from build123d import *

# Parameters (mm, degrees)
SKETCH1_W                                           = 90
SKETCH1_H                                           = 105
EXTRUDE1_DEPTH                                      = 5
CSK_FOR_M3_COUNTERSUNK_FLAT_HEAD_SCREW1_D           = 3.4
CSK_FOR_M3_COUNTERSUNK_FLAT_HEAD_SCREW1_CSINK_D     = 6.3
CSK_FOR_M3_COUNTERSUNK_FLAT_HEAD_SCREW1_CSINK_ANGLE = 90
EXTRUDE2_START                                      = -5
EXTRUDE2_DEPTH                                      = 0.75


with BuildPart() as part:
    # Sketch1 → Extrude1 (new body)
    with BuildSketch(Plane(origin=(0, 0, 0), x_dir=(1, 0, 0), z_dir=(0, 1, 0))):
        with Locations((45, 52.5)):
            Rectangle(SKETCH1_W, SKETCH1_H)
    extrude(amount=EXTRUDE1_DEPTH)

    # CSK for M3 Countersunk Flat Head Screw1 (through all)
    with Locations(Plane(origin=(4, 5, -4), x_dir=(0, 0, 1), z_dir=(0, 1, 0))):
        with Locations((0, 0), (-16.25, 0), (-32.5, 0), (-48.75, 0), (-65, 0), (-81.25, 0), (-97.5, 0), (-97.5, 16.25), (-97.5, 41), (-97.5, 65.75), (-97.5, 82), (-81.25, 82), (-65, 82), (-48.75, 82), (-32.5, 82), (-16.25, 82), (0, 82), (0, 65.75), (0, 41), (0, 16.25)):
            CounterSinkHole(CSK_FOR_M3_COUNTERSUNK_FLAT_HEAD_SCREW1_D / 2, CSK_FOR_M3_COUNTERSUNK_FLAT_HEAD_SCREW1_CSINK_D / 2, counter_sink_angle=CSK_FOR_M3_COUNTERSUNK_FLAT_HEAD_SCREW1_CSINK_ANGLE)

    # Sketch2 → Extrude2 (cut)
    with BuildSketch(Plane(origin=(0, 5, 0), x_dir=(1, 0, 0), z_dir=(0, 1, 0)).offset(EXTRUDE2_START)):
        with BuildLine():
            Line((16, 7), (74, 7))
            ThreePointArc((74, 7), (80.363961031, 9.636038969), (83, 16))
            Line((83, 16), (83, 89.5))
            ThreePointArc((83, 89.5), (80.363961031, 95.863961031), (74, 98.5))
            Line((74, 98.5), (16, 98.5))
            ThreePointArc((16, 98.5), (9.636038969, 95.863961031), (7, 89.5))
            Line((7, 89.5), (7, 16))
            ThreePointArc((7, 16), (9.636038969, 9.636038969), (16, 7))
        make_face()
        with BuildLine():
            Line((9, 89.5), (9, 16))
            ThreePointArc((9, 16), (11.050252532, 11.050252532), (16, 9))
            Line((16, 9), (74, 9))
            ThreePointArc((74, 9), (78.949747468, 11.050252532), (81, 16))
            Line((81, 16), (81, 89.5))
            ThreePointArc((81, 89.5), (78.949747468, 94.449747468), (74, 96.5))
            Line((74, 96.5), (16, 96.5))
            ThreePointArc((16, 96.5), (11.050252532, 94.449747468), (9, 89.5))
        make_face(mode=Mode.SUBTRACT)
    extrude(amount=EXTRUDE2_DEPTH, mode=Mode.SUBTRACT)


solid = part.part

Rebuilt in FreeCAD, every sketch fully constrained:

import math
import FreeCAD as App
import Part
import Sketcher
from FreeCAD import Vector

doc = App.newDocument("Part")
body = doc.addObject("PartDesign::Body", "Body")

sketch1 = body.newObject("Sketcher::SketchObject", "Sketch")
sketch1.AttachmentSupport = (doc.getObject("XZ_Plane"), [""])
sketch1.MapMode = "FlatFace"
sketch1.addGeometry(Part.LineSegment(Vector(0, -105, 0), Vector(0, 0, 0)), False)
sketch1.addGeometry(Part.LineSegment(Vector(0, 0, 0), Vector(90, 0, 0)), False)
sketch1.addGeometry(Part.LineSegment(Vector(90, 0, 0), Vector(90, -105, 0)), False)
sketch1.addGeometry(Part.LineSegment(Vector(90, -105, 0), Vector(0, -105, 0)), False)
sketch1.addConstraint(Sketcher.Constraint("Coincident", 0, 2, 1, 1))
sketch1.addConstraint(Sketcher.Constraint("Coincident", 1, 2, 2, 1))
sketch1.addConstraint(Sketcher.Constraint("Coincident", 2, 2, 3, 1))
sketch1.addConstraint(Sketcher.Constraint("Coincident", 3, 2, 0, 1))
sketch1.addConstraint(Sketcher.Constraint("Vertical", 0))
sketch1.addConstraint(Sketcher.Constraint("Horizontal", 1))
sketch1.addConstraint(Sketcher.Constraint("Vertical", 2))
sketch1.addConstraint(Sketcher.Constraint("Horizontal", 3))
sketch1.addConstraint(Sketcher.Constraint("Coincident", 0, 2, -1, 1))
sketch1.addConstraint(Sketcher.Constraint("DistanceX", 1, 1, 1, 2, 90.0))
sketch1.addConstraint(Sketcher.Constraint("DistanceY", 0, 1, 0, 2, 105.0))
pad1 = body.newObject("PartDesign::Pad", "Pad")
pad1.Profile = sketch1
pad1.Length = 5
pad1.Reversed = True

sketch2 = body.newObject("Sketcher::SketchObject", "Sketch001")
sketch2.AttachmentSupport = (doc.getObject("XZ_Plane"), [""])
sketch2.MapMode = "FlatFace"
sketch2.AttachmentOffset = App.Placement(Vector(0, 0, -5), App.Rotation())
sketch2.addGeometry(Part.Circle(Vector(4, -4, 0), Vector(0, 0, 1), 1.7), False)
sketch2.addGeometry(Part.Circle(Vector(4, -20.25, 0), Vector(0, 0, 1), 1.7), False)
sketch2.addGeometry(Part.Circle(Vector(4, -36.5, 0), Vector(0, 0, 1), 1.7), False)
sketch2.addGeometry(Part.Circle(Vector(4, -52.75, 0), Vector(0, 0, 1), 1.7), False)
sketch2.addGeometry(Part.Circle(Vector(4, -69, 0), Vector(0, 0, 1), 1.7), False)
sketch2.addGeometry(Part.Circle(Vector(4, -85.25, 0), Vector(0, 0, 1), 1.7), False)
sketch2.addGeometry(Part.Circle(Vector(4, -101.5, 0), Vector(0, 0, 1), 1.7), False)
sketch2.addGeometry(Part.Circle(Vector(20.25, -101.5, 0), Vector(0, 0, 1), 1.7), False)
sketch2.addGeometry(Part.Circle(Vector(45, -101.5, 0), Vector(0, 0, 1), 1.7), False)
sketch2.addGeometry(Part.Circle(Vector(69.75, -101.5, 0), Vector(0, 0, 1), 1.7), False)
sketch2.addGeometry(Part.Circle(Vector(86, -101.5, 0), Vector(0, 0, 1), 1.7), False)
sketch2.addGeometry(Part.Circle(Vector(86, -85.25, 0), Vector(0, 0, 1), 1.7), False)
sketch2.addGeometry(Part.Circle(Vector(86, -69, 0), Vector(0, 0, 1), 1.7), False)
sketch2.addGeometry(Part.Circle(Vector(86, -52.75, 0), Vector(0, 0, 1), 1.7), False)
sketch2.addGeometry(Part.Circle(Vector(86, -36.5, 0), Vector(0, 0, 1), 1.7), False)
sketch2.addGeometry(Part.Circle(Vector(86, -20.25, 0), Vector(0, 0, 1), 1.7), False)
sketch2.addGeometry(Part.Circle(Vector(86, -4, 0), Vector(0, 0, 1), 1.7), False)
sketch2.addGeometry(Part.Circle(Vector(69.75, -4, 0), Vector(0, 0, 1), 1.7), False)
sketch2.addGeometry(Part.Circle(Vector(45, -4, 0), Vector(0, 0, 1), 1.7), False)
sketch2.addGeometry(Part.Circle(Vector(20.25, -4, 0), Vector(0, 0, 1), 1.7), False)
sketch2.addConstraint(Sketcher.Constraint("Equal", 0, 1))
sketch2.addConstraint(Sketcher.Constraint("Equal", 1, 2))
sketch2.addConstraint(Sketcher.Constraint("Equal", 2, 3))
sketch2.addConstraint(Sketcher.Constraint("Equal", 3, 4))
sketch2.addConstraint(Sketcher.Constraint("Equal", 4, 5))
sketch2.addConstraint(Sketcher.Constraint("Equal", 5, 6))
sketch2.addConstraint(Sketcher.Constraint("Equal", 6, 7))
sketch2.addConstraint(Sketcher.Constraint("Equal", 7, 8))
sketch2.addConstraint(Sketcher.Constraint("Equal", 8, 9))
sketch2.addConstraint(Sketcher.Constraint("Equal", 9, 10))
sketch2.addConstraint(Sketcher.Constraint("Equal", 10, 11))
sketch2.addConstraint(Sketcher.Constraint("Equal", 11, 12))
sketch2.addConstraint(Sketcher.Constraint("Equal", 12, 13))
sketch2.addConstraint(Sketcher.Constraint("Equal", 13, 14))
sketch2.addConstraint(Sketcher.Constraint("Equal", 14, 15))
sketch2.addConstraint(Sketcher.Constraint("Equal", 15, 16))
sketch2.addConstraint(Sketcher.Constraint("Equal", 16, 17))
sketch2.addConstraint(Sketcher.Constraint("Equal", 17, 18))
sketch2.addConstraint(Sketcher.Constraint("Equal", 18, 19))
sketch2.addConstraint(Sketcher.Constraint("Horizontal", 6, 3, 7, 3))
sketch2.addConstraint(Sketcher.Constraint("Horizontal", 7, 3, 8, 3))
sketch2.addConstraint(Sketcher.Constraint("Horizontal", 8, 3, 9, 3))
sketch2.addConstraint(Sketcher.Constraint("Horizontal", 9, 3, 10, 3))
sketch2.addConstraint(Sketcher.Constraint("Horizontal", 5, 3, 11, 3))
sketch2.addConstraint(Sketcher.Constraint("Horizontal", 4, 3, 12, 3))
sketch2.addConstraint(Sketcher.Constraint("Horizontal", 3, 3, 13, 3))
sketch2.addConstraint(Sketcher.Constraint("Horizontal", 2, 3, 14, 3))
sketch2.addConstraint(Sketcher.Constraint("Horizontal", 1, 3, 15, 3))
sketch2.addConstraint(Sketcher.Constraint("Horizontal", 0, 3, 16, 3))
sketch2.addConstraint(Sketcher.Constraint("Horizontal", 16, 3, 17, 3))
sketch2.addConstraint(Sketcher.Constraint("Horizontal", 17, 3, 18, 3))
sketch2.addConstraint(Sketcher.Constraint("Horizontal", 18, 3, 19, 3))
sketch2.addConstraint(Sketcher.Constraint("Vertical", 0, 3, 1, 3))
sketch2.addConstraint(Sketcher.Constraint("Vertical", 1, 3, 2, 3))
sketch2.addConstraint(Sketcher.Constraint("Vertical", 2, 3, 3, 3))
sketch2.addConstraint(Sketcher.Constraint("Vertical", 3, 3, 4, 3))
sketch2.addConstraint(Sketcher.Constraint("Vertical", 4, 3, 5, 3))
sketch2.addConstraint(Sketcher.Constraint("Vertical", 5, 3, 6, 3))
sketch2.addConstraint(Sketcher.Constraint("Vertical", 10, 3, 11, 3))
sketch2.addConstraint(Sketcher.Constraint("Vertical", 11, 3, 12, 3))
sketch2.addConstraint(Sketcher.Constraint("Vertical", 12, 3, 13, 3))
sketch2.addConstraint(Sketcher.Constraint("Vertical", 13, 3, 14, 3))
sketch2.addConstraint(Sketcher.Constraint("Vertical", 14, 3, 15, 3))
sketch2.addConstraint(Sketcher.Constraint("Vertical", 15, 3, 16, 3))
sketch2.addConstraint(Sketcher.Constraint("Vertical", 9, 3, 17, 3))
sketch2.addConstraint(Sketcher.Constraint("Vertical", 8, 3, 18, 3))
sketch2.addConstraint(Sketcher.Constraint("Vertical", 7, 3, 19, 3))
sketch2.addConstraint(Sketcher.Constraint("Diameter", 0, 3.4))
sketch2.addConstraint(Sketcher.Constraint("DistanceX", -1, 1, 0, 3, 4.0))
sketch2.addConstraint(Sketcher.Constraint("DistanceY", 0, 3, -1, 1, 4.0))
sketch2.addConstraint(Sketcher.Constraint("DistanceY", 4, 3, -1, 1, 69.0))
sketch2.addConstraint(Sketcher.Constraint("DistanceX", -1, 1, 8, 3, 45.0))
sketch2.addConstraint(Sketcher.Constraint("DistanceX", -1, 1, 10, 3, 86.0))
sketch2.addConstraint(Sketcher.Constraint("DistanceY", 5, 3, 1, 3, 65.0))
sketch2.addConstraint(Sketcher.Constraint("DistanceY", 6, 3, 2, 3, 65.0))
sketch2.addConstraint(Sketcher.Constraint("DistanceY", 2, 3, -1, 1, 36.5))
sketch2.addConstraint(Sketcher.Constraint("DistanceY", 3, 3, 1, 3, 32.5))
sketch2.addConstraint(Sketcher.Constraint("DistanceX", 7, 3, 9, 3, 49.5))
sketch2.addConstraint(Sketcher.Constraint("DistanceY", 1, 3, -1, 1, 20.25))
sketch2.addConstraint(Sketcher.Constraint("DistanceX", -1, 1, 7, 3, 20.25))
doc.recompute()
hole = body.newObject("PartDesign::Hole", "Hole")
hole.Profile = sketch2
hole.ThreadType = "None"
hole.Diameter = 3.4
hole.DepthType = "ThroughAll"
hole.HoleCutType = "Countersink"
hole.HoleCutDiameter = 6.3
hole.HoleCutCountersinkAngle = 90
hole.Reversed = True

sketch3 = body.newObject("Sketcher::SketchObject", "Sketch002")
sketch3.AttachmentSupport = (doc.getObject("XZ_Plane"), [""])
sketch3.MapMode = "FlatFace"
sketch3.addGeometry(Part.LineSegment(Vector(16, -7, 0), Vector(74, -7, 0)), False)
sketch3.addGeometry(Part.ArcOfCircle(Part.Circle(Vector(74, -16, 0), Vector(0, 0, 1), 9), math.radians(0), math.radians(90)), False)
sketch3.addGeometry(Part.LineSegment(Vector(83, -16, 0), Vector(83, -89.5, 0)), False)
sketch3.addGeometry(Part.ArcOfCircle(Part.Circle(Vector(74, -89.5, 0), Vector(0, 0, 1), 9), math.radians(-90), math.radians(0)), False)
sketch3.addGeometry(Part.LineSegment(Vector(74, -98.5, 0), Vector(16, -98.5, 0)), False)
sketch3.addGeometry(Part.ArcOfCircle(Part.Circle(Vector(16, -89.5, 0), Vector(0, 0, 1), 9), math.radians(180), math.radians(270)), False)
sketch3.addGeometry(Part.LineSegment(Vector(7, -89.5, 0), Vector(7, -16, 0)), False)
sketch3.addGeometry(Part.ArcOfCircle(Part.Circle(Vector(16, -16, 0), Vector(0, 0, 1), 9), math.radians(90), math.radians(180)), False)
sketch3.addGeometry(Part.LineSegment(Vector(9, -16, 0), Vector(9, -89.5, 0)), False)
sketch3.addGeometry(Part.ArcOfCircle(Part.Circle(Vector(16, -89.5, 0), Vector(0, 0, 1), 7), math.radians(-180), math.radians(-90)), False)
sketch3.addGeometry(Part.LineSegment(Vector(16, -96.5, 0), Vector(74, -96.5, 0)), False)
sketch3.addGeometry(Part.ArcOfCircle(Part.Circle(Vector(74, -89.5, 0), Vector(0, 0, 1), 7), math.radians(-90), math.radians(0)), False)
sketch3.addGeometry(Part.LineSegment(Vector(81, -89.5, 0), Vector(81, -16, 0)), False)
sketch3.addGeometry(Part.ArcOfCircle(Part.Circle(Vector(74, -16, 0), Vector(0, 0, 1), 7), math.radians(0), math.radians(90)), False)
sketch3.addGeometry(Part.LineSegment(Vector(74, -9, 0), Vector(16, -9, 0)), False)
sketch3.addGeometry(Part.ArcOfCircle(Part.Circle(Vector(16, -16, 0), Vector(0, 0, 1), 7), math.radians(90), math.radians(180)), False)
sketch3.addConstraint(Sketcher.Constraint("Tangent", 0, 2, 1, 2))
sketch3.addConstraint(Sketcher.Constraint("Tangent", 1, 1, 2, 1))
sketch3.addConstraint(Sketcher.Constraint("Tangent", 2, 2, 3, 2))
sketch3.addConstraint(Sketcher.Constraint("Tangent", 3, 1, 4, 1))
sketch3.addConstraint(Sketcher.Constraint("Tangent", 4, 2, 5, 2))
sketch3.addConstraint(Sketcher.Constraint("Tangent", 5, 1, 6, 1))
sketch3.addConstraint(Sketcher.Constraint("Tangent", 6, 2, 7, 2))
sketch3.addConstraint(Sketcher.Constraint("Tangent", 7, 1, 0, 1))
sketch3.addConstraint(Sketcher.Constraint("Tangent", 8, 2, 9, 1))
sketch3.addConstraint(Sketcher.Constraint("Tangent", 9, 2, 10, 1))
sketch3.addConstraint(Sketcher.Constraint("Tangent", 10, 2, 11, 1))
sketch3.addConstraint(Sketcher.Constraint("Tangent", 11, 2, 12, 1))
sketch3.addConstraint(Sketcher.Constraint("Tangent", 12, 2, 13, 1))
sketch3.addConstraint(Sketcher.Constraint("Tangent", 13, 2, 14, 1))
sketch3.addConstraint(Sketcher.Constraint("Tangent", 14, 2, 15, 1))
sketch3.addConstraint(Sketcher.Constraint("Tangent", 15, 2, 8, 1))
sketch3.addConstraint(Sketcher.Constraint("Horizontal", 0))
sketch3.addConstraint(Sketcher.Constraint("Vertical", 2))
sketch3.addConstraint(Sketcher.Constraint("Horizontal", 4))
sketch3.addConstraint(Sketcher.Constraint("Vertical", 6))
sketch3.addConstraint(Sketcher.Constraint("Vertical", 8))
sketch3.addConstraint(Sketcher.Constraint("Horizontal", 10))
sketch3.addConstraint(Sketcher.Constraint("Vertical", 12))
sketch3.addConstraint(Sketcher.Constraint("Horizontal", 14))
sketch3.addConstraint(Sketcher.Constraint("Coincident", 9, 3, 5, 3))
sketch3.addConstraint(Sketcher.Constraint("Coincident", 11, 3, 3, 3))
sketch3.addConstraint(Sketcher.Constraint("Coincident", 13, 3, 1, 3))
sketch3.addConstraint(Sketcher.Constraint("Equal", 1, 3))
sketch3.addConstraint(Sketcher.Constraint("Equal", 3, 5))
sketch3.addConstraint(Sketcher.Constraint("Equal", 5, 7))
sketch3.addConstraint(Sketcher.Constraint("Equal", 13, 15))
sketch3.addConstraint(Sketcher.Constraint("Radius", 1, 9.0))
sketch3.addConstraint(Sketcher.Constraint("Radius", 9, 7.0))
sketch3.addConstraint(Sketcher.Constraint("DistanceX", 0, 1, 0, 2, 58.0))
sketch3.addConstraint(Sketcher.Constraint("DistanceY", 2, 2, 2, 1, 73.5))
sketch3.addConstraint(Sketcher.Constraint("DistanceX", -1, 1, 1, 3, 74.0))
sketch3.addConstraint(Sketcher.Constraint("DistanceY", 1, 3, -1, 1, 16.0))
pocket1 = body.newObject("PartDesign::Pocket", "Pocket")
pocket1.Profile = sketch3
pocket1.Length = 0.75

doc.recompute()
